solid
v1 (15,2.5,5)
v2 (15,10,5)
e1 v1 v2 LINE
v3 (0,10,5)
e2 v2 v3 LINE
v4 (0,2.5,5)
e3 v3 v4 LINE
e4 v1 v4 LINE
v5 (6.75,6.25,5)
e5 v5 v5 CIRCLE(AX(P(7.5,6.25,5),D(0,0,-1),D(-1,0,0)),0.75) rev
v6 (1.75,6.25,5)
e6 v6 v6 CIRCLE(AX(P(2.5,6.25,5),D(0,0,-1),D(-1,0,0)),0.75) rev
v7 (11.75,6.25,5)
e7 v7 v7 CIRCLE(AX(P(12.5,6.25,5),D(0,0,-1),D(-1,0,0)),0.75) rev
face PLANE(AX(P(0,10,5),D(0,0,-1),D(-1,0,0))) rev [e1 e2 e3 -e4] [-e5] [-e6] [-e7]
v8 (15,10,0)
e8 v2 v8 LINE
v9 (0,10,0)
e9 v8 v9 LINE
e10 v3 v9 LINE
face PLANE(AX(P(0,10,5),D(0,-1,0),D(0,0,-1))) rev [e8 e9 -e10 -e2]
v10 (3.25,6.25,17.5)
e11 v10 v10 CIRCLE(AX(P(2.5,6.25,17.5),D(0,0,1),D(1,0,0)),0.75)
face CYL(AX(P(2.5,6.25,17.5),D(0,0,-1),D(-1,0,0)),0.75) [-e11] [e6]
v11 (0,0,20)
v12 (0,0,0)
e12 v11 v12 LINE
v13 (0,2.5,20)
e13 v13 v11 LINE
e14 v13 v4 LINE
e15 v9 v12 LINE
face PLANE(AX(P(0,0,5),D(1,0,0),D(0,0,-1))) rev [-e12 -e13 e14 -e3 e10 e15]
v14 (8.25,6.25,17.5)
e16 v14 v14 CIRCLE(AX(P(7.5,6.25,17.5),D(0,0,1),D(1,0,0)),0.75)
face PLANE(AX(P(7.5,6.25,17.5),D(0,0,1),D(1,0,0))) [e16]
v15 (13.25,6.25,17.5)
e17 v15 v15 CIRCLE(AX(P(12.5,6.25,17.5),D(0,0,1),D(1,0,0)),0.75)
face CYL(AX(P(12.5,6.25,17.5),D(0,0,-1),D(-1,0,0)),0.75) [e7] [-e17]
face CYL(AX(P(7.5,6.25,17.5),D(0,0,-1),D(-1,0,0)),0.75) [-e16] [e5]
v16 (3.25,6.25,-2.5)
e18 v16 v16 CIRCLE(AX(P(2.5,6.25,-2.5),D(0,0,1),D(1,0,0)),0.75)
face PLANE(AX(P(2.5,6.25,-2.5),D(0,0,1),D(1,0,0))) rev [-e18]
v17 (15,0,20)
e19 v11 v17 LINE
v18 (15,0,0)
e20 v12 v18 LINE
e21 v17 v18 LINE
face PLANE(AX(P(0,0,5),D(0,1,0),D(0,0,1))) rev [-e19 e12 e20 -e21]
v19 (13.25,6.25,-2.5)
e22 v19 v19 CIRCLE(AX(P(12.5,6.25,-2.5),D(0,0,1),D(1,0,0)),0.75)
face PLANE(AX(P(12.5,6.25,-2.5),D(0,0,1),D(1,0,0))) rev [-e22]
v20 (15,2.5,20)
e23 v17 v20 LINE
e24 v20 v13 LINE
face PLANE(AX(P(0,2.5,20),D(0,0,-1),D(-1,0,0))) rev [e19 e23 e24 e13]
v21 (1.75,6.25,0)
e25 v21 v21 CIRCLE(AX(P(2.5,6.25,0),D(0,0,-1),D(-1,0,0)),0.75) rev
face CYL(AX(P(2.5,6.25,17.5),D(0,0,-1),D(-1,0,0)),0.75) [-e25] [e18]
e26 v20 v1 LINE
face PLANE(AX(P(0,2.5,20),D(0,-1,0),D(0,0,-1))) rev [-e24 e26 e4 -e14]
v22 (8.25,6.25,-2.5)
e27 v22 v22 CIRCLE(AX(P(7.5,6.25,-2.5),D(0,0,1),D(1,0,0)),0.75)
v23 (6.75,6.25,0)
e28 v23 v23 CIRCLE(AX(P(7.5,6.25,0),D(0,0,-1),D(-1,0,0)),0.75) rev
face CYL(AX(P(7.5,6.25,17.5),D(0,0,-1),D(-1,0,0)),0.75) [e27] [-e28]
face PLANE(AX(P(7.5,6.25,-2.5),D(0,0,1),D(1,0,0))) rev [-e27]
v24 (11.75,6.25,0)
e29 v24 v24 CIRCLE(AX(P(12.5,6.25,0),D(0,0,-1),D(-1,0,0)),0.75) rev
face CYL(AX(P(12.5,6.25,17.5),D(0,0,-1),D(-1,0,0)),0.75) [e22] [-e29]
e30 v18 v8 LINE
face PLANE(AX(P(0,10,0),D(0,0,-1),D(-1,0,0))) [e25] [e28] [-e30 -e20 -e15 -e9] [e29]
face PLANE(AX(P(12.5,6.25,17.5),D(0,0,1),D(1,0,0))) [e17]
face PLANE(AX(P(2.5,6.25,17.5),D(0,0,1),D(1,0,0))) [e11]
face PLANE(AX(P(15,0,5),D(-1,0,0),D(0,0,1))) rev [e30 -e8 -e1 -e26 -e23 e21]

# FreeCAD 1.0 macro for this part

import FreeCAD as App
import Part
import Sketcher

V = App.Vector
Q = App.Units.Quantity


def add_polygon(sketch, points):
    """Adds a closed chain of lines whose ends are joined by coincident constraints."""
    first, n = sketch.GeometryCount, len(points)
    for a, b in zip(points, points[1:] + points[:1]):
        sketch.addGeometry(Part.LineSegment(App.Vector(*a, 0), App.Vector(*b, 0)), False)
    for i in range(n):
        sketch.addConstraint(Sketcher.Constraint("Coincident", first + i, 2, first + (i + 1) % n, 1))

doc = App.newDocument("Part")
body = doc.addObject("PartDesign::Body", "Body")

# Sketch on XY plane
sketch1 = body.newObject("Sketcher::SketchObject", "Sketch")
sketch1.AttachmentSupport = (doc.getObject("XY_Plane"), [""])
sketch1.MapMode = "FlatFace"
add_polygon(sketch1, [(0, 10), (0, 0), (15, 0), (15, 10)])  # lines 0-3
sketch1.addConstraint([
    Sketcher.Constraint("Vertical", 0),
    Sketcher.Constraint("Horizontal", 1),
    Sketcher.Constraint("Vertical", 2),
    Sketcher.Constraint("Horizontal", 3),
    Sketcher.Constraint("Coincident", 0, 2, -1, 1),
    Sketcher.Constraint("DistanceX", 1, 1, 1, 2, Q("15 mm")),
    Sketcher.Constraint("DistanceY", 0, 2, 0, 1, Q("10 mm")),
])
pad1 = body.newObject("PartDesign::Pad", "Pad")
pad1.Profile = sketch1
pad1.Length = 5

# Sketch on XY plane
sketch2 = body.newObject("Sketcher::SketchObject", "Sketch001")
sketch2.AttachmentSupport = (doc.getObject("XY_Plane"), [""])
sketch2.MapMode = "FlatFace"
sketch2.AttachmentOffset = App.Placement(V(0, 0, 5), App.Rotation())
add_polygon(sketch2, [(0, 2.5), (0, 0), (15, 0), (15, 2.5)])  # lines 0-3
sketch2.addConstraint([
    Sketcher.Constraint("Vertical", 0),
    Sketcher.Constraint("Horizontal", 1),
    Sketcher.Constraint("Vertical", 2),
    Sketcher.Constraint("Horizontal", 3),
    Sketcher.Constraint("Coincident", 0, 2, -1, 1),
    Sketcher.Constraint("DistanceX", 1, 1, 1, 2, Q("15 mm")),
    Sketcher.Constraint("DistanceY", 0, 2, 0, 1, Q("2.5 mm")),
])
pad2 = body.newObject("PartDesign::Pad", "Pad001")
pad2.Profile = sketch2
pad2.Length = 15

# Sketch on XY plane
sketch3 = body.newObject("Sketcher::SketchObject", "Sketch002")
sketch3.AttachmentSupport = (doc.getObject("XY_Plane"), [""])
sketch3.MapMode = "FlatFace"
sketch3.AttachmentOffset = App.Placement(V(0, 0, 5), App.Rotation())
sketch3.addGeometry([
    Part.Circle(V(7.5, 6.2, 0), V(0, 0, 1), 0.8),
    Part.Circle(V(12.5, 6.2, 0), V(0, 0, 1), 0.8),
    Part.Circle(V(2.5, 6.2, 0), V(0, 0, 1), 0.8),
], False)
sketch3.addConstraint([
    Sketcher.Constraint("Equal", 0, 1),
    Sketcher.Constraint("Equal", 1, 2),
    Sketcher.Constraint("Horizontal", 0, 3, 1, 3),
    Sketcher.Constraint("Horizontal", 1, 3, 2, 3),
    Sketcher.Constraint("Diameter", 0, Q("1.5 mm")),
    Sketcher.Constraint("DistanceX", 0, 3, 1, 3, Q("5 mm")),
    Sketcher.Constraint("DistanceX", 2, 3, 0, 3, Q("5 mm")),
    Sketcher.Constraint("DistanceX", -1, 1, 0, 3, Q("7.5 mm")),
    Sketcher.Constraint("DistanceY", -1, 1, 0, 3, Q("6.25 mm")),
])
pad3 = body.newObject("PartDesign::Pad", "Pad002")
pad3.Profile = sketch3
pad3.Type = "TwoLengths"
pad3.Length = 12.5
pad3.Length2 = 7.5

doc.recompute()
